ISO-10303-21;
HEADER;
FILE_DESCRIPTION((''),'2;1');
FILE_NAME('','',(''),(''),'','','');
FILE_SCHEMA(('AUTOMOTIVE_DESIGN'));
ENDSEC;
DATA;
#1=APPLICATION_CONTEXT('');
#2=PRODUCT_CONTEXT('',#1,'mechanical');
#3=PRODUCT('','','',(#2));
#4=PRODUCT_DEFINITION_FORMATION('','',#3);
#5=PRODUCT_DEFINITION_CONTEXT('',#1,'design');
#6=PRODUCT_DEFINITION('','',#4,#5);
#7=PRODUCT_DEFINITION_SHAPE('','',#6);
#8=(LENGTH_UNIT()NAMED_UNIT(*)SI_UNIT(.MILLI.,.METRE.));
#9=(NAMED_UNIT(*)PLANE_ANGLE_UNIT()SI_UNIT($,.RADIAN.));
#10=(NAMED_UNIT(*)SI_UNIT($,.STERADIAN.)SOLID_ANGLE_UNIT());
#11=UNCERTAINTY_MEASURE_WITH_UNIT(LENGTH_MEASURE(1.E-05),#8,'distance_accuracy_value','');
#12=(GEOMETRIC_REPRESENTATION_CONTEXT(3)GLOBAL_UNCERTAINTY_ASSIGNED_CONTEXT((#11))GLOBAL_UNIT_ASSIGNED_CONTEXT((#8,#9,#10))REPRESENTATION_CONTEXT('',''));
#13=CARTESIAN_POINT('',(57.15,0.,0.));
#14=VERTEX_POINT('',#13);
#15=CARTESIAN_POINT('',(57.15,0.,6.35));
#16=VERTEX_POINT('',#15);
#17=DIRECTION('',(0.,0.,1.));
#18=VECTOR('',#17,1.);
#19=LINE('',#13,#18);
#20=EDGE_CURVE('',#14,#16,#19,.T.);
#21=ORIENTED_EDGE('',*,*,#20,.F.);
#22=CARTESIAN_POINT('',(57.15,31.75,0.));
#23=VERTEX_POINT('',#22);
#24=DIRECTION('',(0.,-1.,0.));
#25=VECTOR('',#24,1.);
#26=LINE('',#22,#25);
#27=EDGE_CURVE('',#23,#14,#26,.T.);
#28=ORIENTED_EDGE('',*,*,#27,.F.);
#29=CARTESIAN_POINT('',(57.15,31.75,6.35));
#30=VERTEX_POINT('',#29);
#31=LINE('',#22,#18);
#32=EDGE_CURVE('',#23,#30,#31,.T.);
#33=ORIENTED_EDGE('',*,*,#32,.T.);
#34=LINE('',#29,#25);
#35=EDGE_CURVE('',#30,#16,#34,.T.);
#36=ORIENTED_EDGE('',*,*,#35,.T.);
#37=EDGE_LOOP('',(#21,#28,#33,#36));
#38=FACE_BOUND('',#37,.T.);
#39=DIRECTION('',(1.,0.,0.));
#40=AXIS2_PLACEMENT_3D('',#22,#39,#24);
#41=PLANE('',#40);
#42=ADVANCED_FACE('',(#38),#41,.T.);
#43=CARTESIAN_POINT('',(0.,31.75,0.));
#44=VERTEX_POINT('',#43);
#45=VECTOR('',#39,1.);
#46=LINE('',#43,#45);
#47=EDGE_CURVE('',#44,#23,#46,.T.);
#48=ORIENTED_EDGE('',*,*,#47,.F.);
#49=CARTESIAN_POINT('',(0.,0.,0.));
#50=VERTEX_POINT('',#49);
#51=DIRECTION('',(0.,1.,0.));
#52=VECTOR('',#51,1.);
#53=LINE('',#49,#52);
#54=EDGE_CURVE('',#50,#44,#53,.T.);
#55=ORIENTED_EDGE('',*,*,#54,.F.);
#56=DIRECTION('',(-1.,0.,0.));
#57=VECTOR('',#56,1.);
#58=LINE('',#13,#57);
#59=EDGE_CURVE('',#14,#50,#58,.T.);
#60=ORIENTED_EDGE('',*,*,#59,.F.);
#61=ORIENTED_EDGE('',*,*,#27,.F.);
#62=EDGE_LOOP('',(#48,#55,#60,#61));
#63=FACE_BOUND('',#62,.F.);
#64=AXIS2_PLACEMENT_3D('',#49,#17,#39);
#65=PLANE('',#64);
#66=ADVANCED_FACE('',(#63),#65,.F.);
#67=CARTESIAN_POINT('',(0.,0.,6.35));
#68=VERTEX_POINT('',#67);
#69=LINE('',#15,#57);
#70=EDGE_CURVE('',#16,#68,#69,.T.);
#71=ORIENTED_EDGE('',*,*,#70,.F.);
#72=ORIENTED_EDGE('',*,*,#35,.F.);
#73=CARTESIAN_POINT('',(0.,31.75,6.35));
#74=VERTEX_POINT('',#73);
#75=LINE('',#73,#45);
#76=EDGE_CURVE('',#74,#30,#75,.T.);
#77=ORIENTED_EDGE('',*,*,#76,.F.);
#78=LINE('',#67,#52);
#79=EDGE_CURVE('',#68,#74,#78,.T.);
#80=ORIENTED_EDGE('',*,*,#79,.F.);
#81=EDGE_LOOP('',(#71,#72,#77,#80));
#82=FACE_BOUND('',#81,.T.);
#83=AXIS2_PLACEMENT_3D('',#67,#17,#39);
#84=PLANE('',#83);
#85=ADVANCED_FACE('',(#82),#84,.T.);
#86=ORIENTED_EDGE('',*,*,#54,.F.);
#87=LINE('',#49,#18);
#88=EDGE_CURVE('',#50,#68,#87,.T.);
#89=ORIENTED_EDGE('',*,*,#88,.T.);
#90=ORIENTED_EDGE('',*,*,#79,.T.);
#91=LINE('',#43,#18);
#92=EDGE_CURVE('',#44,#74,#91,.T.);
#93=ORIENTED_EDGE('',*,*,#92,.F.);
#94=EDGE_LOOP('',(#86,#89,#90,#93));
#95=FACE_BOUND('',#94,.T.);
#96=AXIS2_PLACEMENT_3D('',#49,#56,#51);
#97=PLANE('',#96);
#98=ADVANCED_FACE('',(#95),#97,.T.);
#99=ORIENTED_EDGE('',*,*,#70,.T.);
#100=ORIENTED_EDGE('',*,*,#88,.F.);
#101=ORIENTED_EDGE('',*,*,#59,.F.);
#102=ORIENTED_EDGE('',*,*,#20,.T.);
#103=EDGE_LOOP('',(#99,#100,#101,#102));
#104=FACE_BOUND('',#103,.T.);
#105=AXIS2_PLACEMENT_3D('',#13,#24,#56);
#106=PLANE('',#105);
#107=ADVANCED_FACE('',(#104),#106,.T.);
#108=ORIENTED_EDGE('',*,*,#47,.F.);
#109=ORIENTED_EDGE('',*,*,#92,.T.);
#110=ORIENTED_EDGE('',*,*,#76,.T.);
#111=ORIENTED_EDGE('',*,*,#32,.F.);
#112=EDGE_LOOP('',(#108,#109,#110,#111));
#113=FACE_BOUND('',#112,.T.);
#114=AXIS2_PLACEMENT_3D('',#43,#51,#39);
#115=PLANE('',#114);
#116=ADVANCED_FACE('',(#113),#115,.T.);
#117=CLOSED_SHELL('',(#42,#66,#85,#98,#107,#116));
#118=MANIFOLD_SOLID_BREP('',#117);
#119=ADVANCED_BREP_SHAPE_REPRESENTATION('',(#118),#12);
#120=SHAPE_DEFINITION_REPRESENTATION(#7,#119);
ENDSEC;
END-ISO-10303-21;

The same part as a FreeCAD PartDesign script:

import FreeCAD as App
import Part
import Sketcher
Q = App.Units.Quantity


def add_polygon(sketch, points):
    """Adds a closed chain of lines whose ends are joined by coincident constraints."""
    first, n = sketch.GeometryCount, len(points)
    for a, b in zip(points, points[1:] + points[:1]):
        sketch.addGeometry(Part.LineSegment(App.Vector(*a, 0), App.Vector(*b, 0)), False)
    for i in range(n):
        sketch.addConstraint(Sketcher.Constraint("Coincident", first + i, 2, first + (i + 1) % n, 1))

doc = App.newDocument("Part")
params = doc.addObject("Spreadsheet::Sheet", "Params")
for row, (alias, value) in enumerate([
    ("sketch1_width", "2.25 in"),
    ("sketch1_height", "1.25 in"),
    ("pad1_length", "0.25 in"),
], start=1):
    params.set(f"A{row}", alias)
    params.set(f"B{row}", "=" + value)
    params.setAlias(f"B{row}", alias)

body = doc.addObject("PartDesign::Body", "Body")

sketch1 = body.newObject("Sketcher::SketchObject", "Sketch")
sketch1.AttachmentSupport = (doc.getObject("XY_Plane"), [""])
sketch1.MapMode = "FlatFace"
add_polygon(sketch1, [(57, 32), (0, 32), (0, 0), (57, 0)])
sketch1.addConstraint(Sketcher.Constraint("Horizontal", 0))
sketch1.addConstraint(Sketcher.Constraint("Vertical", 1))
sketch1.addConstraint(Sketcher.Constraint("Horizontal", 2))
sketch1.addConstraint(Sketcher.Constraint("Vertical", 3))
sketch1.addConstraint(Sketcher.Constraint("Coincident", 1, 2, -1, 1))
sketch1.addConstraint(Sketcher.Constraint("DistanceX", 0, 2, 0, 1, Q("2.25 in")))
sketch1.addConstraint(Sketcher.Constraint("DistanceY", 1, 2, 1, 1, Q("1.25 in")))
sketch1.setExpression("Constraints[9]", "Params.sketch1_width")
sketch1.setExpression("Constraints[10]", "Params.sketch1_height")
pad1 = body.newObject("PartDesign::Pad", "Pad")
pad1.Profile = sketch1
pad1.setExpression("Length", "Params.pad1_length")

doc.recompute()
